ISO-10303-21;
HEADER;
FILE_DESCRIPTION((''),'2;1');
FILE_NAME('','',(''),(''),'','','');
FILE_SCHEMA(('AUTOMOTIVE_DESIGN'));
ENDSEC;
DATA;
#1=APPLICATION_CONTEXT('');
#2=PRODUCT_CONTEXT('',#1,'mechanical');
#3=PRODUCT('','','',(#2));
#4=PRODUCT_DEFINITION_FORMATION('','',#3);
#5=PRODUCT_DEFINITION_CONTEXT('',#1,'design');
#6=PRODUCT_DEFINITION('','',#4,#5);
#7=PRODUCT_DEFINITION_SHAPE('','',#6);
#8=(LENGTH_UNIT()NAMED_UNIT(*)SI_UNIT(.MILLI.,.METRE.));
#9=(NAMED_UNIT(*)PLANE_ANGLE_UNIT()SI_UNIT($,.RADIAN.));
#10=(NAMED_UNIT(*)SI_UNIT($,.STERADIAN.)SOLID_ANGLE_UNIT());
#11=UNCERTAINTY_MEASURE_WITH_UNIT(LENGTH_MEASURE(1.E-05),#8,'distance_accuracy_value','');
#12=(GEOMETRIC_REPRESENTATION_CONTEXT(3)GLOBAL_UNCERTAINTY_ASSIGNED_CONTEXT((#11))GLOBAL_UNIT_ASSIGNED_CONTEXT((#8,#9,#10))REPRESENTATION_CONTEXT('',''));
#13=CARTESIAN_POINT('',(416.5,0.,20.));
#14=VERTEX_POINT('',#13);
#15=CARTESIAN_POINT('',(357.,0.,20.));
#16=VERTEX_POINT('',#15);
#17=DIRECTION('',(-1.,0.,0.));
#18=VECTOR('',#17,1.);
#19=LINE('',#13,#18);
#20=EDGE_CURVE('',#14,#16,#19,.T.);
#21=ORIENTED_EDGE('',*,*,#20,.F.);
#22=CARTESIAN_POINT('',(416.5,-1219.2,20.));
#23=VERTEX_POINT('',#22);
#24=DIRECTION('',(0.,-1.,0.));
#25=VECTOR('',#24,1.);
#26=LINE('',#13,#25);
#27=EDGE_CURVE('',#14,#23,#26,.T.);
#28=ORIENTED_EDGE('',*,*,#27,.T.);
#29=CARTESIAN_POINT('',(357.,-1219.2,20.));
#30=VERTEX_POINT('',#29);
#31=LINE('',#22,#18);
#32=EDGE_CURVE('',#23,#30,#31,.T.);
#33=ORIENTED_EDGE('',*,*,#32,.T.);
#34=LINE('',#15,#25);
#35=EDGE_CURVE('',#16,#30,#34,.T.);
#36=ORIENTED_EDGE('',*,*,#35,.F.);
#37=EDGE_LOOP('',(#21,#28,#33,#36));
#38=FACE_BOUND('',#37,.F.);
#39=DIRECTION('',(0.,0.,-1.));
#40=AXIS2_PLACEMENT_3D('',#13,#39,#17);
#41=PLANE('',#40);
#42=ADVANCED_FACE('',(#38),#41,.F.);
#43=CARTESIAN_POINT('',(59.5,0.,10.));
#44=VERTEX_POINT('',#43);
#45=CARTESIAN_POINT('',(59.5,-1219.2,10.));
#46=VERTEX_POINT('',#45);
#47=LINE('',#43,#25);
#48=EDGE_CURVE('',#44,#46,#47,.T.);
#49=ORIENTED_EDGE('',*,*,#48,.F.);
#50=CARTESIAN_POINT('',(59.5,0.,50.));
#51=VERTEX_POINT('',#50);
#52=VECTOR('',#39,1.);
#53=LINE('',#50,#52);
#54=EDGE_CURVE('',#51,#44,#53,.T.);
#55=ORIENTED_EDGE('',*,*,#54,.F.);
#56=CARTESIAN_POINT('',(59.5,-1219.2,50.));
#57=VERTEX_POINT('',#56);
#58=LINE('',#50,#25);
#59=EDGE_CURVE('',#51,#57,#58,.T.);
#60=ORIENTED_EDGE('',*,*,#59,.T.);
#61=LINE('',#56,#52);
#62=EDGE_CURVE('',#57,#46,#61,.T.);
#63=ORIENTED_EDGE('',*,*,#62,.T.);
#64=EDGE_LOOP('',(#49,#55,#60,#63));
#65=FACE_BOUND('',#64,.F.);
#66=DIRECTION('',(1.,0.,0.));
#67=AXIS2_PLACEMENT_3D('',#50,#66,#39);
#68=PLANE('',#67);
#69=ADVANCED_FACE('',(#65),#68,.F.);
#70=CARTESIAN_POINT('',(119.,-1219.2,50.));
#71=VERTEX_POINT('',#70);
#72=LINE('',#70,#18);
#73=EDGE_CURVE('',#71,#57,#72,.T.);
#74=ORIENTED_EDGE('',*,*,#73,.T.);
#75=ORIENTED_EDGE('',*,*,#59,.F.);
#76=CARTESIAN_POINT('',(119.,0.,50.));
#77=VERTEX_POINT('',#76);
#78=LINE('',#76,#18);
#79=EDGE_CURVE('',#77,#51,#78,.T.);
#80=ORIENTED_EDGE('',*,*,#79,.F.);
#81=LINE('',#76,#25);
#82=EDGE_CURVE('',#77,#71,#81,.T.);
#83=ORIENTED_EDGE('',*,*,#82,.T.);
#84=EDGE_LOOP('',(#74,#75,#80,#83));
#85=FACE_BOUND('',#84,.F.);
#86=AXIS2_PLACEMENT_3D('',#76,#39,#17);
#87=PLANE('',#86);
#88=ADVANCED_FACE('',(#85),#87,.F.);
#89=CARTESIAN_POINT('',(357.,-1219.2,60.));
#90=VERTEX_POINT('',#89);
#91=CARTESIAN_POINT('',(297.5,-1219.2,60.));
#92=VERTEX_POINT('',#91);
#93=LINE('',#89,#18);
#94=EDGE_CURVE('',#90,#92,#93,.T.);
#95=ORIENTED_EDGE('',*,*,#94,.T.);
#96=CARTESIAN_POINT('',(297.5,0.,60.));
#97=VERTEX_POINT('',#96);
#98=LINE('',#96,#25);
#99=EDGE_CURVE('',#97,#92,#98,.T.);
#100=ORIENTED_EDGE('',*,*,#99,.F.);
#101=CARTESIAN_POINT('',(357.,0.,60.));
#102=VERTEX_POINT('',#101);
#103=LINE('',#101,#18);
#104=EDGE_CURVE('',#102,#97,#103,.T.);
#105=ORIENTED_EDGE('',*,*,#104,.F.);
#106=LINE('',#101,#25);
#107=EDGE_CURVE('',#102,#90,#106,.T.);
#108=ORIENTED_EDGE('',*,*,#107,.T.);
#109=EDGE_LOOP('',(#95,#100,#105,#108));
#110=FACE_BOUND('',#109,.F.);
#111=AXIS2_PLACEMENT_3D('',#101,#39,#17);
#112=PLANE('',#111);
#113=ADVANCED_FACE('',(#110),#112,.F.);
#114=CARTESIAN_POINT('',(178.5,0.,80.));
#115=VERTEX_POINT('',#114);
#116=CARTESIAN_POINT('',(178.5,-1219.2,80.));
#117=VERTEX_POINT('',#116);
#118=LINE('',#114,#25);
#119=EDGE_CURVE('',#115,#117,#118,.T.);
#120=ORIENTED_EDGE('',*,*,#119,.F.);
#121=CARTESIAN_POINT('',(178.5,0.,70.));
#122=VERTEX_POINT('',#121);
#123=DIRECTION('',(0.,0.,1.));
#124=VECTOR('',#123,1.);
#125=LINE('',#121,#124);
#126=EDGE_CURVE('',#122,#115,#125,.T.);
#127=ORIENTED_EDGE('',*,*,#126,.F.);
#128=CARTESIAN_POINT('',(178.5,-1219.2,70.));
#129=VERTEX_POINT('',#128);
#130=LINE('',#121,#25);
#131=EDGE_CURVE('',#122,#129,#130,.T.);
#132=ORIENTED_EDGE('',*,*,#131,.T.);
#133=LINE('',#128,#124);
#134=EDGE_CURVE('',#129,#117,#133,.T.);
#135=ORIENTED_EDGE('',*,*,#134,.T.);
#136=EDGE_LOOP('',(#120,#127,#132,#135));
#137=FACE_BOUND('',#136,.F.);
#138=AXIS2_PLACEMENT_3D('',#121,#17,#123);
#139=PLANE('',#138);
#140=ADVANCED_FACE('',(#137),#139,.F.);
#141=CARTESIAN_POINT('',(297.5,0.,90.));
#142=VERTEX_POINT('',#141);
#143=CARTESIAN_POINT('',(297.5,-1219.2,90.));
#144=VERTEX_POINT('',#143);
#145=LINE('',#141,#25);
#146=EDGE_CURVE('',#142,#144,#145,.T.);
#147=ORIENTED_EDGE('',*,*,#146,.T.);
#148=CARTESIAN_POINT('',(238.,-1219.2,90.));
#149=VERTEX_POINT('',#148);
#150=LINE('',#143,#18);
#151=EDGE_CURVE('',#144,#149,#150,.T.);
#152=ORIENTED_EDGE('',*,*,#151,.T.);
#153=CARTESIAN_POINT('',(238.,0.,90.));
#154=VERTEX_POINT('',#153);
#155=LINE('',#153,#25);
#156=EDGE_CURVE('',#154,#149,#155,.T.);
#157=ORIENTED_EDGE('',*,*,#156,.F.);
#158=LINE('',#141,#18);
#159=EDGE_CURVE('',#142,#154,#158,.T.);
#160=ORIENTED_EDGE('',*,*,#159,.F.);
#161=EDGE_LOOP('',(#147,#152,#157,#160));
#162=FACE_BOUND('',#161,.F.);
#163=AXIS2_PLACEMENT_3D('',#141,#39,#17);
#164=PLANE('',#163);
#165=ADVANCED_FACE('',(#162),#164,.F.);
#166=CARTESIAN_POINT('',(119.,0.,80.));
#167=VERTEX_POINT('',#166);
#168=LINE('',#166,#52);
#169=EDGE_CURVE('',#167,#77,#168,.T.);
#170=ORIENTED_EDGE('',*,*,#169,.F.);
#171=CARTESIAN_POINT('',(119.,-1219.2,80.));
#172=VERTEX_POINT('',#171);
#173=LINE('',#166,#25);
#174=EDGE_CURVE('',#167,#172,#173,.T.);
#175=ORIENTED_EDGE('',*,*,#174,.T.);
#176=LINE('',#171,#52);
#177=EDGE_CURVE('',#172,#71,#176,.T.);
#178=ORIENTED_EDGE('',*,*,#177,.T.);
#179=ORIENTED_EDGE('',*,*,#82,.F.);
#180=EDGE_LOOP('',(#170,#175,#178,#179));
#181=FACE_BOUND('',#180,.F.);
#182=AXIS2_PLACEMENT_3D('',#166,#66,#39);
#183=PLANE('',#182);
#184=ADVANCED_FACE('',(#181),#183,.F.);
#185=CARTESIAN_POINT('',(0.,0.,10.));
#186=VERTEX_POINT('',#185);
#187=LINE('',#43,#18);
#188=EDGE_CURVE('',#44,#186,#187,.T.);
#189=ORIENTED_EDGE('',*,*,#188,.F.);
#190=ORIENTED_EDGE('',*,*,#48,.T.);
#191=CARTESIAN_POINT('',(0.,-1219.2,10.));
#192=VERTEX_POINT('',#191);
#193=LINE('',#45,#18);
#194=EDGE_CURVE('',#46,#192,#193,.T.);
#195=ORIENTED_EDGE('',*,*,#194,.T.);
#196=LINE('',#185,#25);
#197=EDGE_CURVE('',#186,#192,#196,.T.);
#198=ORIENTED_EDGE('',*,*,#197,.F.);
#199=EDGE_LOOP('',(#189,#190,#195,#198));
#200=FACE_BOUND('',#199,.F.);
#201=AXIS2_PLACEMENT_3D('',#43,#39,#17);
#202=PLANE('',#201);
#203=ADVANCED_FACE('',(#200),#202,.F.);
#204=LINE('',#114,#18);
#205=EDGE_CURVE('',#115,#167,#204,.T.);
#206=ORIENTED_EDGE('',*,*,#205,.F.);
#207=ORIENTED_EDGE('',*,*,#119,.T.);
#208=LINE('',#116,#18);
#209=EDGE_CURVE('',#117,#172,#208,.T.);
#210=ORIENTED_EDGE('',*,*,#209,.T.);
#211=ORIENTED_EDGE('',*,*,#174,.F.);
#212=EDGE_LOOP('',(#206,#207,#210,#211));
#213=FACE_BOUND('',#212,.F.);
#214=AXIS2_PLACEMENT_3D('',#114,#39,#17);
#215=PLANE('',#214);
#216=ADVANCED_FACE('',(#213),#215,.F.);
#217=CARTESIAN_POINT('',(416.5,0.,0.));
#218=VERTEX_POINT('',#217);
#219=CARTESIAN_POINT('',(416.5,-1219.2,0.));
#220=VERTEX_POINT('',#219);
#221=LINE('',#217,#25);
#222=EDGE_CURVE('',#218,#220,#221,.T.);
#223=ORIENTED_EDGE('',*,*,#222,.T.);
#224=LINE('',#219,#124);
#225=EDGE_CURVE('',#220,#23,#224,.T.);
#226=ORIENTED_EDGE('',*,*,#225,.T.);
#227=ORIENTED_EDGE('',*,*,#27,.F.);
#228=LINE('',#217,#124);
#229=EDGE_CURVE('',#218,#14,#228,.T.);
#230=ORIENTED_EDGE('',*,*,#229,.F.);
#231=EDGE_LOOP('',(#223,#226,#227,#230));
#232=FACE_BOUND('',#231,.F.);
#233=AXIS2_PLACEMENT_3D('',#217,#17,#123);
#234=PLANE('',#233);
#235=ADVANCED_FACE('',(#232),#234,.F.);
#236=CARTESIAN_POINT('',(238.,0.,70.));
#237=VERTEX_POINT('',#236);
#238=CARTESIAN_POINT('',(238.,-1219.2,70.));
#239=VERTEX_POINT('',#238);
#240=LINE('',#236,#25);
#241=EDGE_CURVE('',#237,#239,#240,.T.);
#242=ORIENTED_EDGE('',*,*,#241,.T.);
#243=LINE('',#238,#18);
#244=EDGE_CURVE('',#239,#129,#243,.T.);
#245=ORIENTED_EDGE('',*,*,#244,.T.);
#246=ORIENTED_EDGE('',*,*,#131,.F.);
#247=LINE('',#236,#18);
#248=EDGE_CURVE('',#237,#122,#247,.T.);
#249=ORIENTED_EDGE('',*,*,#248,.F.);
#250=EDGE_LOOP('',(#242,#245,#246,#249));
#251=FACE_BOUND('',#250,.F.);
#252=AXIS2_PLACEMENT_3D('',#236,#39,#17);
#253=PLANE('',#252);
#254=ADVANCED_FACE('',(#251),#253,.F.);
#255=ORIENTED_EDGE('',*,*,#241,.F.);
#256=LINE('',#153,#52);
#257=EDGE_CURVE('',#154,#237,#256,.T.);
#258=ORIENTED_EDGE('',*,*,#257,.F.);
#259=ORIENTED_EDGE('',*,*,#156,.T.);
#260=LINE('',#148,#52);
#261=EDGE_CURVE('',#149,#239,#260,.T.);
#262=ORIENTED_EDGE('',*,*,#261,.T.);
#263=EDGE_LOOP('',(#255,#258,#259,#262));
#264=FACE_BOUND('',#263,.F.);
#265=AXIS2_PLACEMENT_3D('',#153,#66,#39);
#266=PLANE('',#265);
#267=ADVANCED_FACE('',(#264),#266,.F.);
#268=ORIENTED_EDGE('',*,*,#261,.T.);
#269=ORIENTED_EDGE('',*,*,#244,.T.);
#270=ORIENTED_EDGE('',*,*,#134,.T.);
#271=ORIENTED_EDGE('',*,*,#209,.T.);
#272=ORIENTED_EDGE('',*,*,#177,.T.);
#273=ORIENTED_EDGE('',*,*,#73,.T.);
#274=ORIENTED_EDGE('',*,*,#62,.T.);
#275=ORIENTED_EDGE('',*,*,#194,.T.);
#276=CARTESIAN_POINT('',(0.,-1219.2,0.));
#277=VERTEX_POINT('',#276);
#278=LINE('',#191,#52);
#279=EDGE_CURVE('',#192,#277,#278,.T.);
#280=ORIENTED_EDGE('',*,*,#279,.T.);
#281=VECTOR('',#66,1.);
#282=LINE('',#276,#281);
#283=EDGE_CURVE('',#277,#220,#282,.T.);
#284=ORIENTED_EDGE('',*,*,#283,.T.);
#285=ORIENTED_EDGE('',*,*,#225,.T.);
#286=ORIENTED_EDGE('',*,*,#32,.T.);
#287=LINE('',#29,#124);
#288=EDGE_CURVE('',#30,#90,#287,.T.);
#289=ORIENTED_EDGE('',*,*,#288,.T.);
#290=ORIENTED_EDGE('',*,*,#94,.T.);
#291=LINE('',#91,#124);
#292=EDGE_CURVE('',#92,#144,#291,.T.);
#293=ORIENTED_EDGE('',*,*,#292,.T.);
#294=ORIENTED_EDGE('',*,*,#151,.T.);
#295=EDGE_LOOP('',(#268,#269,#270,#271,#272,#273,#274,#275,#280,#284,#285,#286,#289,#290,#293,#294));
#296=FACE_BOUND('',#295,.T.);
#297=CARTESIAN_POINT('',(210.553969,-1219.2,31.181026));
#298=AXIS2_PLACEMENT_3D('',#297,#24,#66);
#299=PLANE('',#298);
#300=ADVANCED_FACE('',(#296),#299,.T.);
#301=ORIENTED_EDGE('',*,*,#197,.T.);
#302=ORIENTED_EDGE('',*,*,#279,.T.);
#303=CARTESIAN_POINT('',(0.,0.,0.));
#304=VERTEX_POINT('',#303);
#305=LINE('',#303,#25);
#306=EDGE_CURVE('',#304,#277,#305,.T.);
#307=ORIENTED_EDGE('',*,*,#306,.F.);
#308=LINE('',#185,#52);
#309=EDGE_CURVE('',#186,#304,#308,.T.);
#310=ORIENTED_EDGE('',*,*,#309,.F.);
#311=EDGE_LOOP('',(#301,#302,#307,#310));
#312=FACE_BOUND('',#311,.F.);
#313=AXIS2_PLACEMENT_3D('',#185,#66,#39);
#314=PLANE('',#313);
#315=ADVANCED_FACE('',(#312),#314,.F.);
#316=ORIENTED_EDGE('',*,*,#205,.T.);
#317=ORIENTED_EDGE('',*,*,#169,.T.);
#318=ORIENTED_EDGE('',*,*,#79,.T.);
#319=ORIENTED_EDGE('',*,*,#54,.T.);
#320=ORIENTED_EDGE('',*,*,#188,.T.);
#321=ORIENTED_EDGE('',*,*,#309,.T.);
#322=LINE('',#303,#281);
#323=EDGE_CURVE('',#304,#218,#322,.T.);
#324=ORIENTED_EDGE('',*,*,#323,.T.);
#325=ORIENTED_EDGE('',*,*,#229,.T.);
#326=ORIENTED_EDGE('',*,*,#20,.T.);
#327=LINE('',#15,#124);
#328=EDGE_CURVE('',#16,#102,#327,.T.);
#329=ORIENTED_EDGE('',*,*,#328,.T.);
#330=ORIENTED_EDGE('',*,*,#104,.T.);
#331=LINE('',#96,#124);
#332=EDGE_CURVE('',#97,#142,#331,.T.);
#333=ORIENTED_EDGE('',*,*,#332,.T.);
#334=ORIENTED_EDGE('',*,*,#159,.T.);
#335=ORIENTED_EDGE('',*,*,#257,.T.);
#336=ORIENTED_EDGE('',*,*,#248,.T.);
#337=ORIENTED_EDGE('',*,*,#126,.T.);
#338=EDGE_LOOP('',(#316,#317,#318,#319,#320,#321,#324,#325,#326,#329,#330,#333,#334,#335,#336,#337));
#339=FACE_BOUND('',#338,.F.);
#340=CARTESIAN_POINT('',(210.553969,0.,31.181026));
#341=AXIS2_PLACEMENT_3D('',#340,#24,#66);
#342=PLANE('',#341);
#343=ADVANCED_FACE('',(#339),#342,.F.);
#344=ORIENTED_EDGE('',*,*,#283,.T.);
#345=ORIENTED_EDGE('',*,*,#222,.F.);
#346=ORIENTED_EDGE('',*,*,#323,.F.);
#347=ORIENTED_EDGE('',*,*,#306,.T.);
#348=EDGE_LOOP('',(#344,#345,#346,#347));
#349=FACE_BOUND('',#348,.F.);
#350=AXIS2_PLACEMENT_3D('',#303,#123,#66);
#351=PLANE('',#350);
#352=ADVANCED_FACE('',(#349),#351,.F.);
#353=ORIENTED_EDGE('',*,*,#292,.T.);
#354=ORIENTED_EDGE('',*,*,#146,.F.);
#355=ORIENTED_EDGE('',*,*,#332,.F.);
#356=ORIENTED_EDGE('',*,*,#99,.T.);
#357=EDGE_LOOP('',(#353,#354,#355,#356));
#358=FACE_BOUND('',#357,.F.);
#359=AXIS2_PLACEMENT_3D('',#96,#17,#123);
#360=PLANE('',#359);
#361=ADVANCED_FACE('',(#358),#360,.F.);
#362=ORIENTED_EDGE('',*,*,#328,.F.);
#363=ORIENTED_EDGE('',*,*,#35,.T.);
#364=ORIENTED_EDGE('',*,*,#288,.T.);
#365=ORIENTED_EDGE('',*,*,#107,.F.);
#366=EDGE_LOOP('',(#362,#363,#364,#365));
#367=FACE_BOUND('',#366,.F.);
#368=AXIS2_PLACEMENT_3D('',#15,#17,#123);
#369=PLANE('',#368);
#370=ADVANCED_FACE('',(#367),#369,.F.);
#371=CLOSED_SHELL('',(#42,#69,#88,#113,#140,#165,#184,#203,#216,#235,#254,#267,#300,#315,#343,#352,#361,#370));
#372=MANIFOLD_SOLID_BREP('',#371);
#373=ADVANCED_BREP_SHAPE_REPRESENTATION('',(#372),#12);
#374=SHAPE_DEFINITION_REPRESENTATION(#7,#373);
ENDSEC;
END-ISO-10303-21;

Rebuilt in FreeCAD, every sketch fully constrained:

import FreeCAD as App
import Part
import Sketcher

V = App.Vector
Q = App.Units.Quantity

doc = App.newDocument("Part")
body = doc.addObject("PartDesign::Body", "Body")

# Sketch on XZ plane
sketch1 = doc.addObject("Sketcher::SketchObject", "Sketch")
body.addObject(sketch1)
sketch1.AttachmentSupport = (doc.XZ_Plane, [""])
sketch1.MapMode = "FlatFace"
sketch1.addGeometry(Part.LineSegment(V(0, 10, 0), V(0, 0, 0)), False)
sketch1.addGeometry(Part.LineSegment(V(0, 0, 0), V(416.5, 0, 0)), False)
sketch1.addGeometry(Part.LineSegment(V(416.5, 0, 0), V(416.5, 20, 0)), False)
sketch1.addGeometry(Part.LineSegment(V(416.5, 20, 0), V(357, 20, 0)), False)
sketch1.addGeometry(Part.LineSegment(V(357, 20, 0), V(357, 60, 0)), False)
sketch1.addGeometry(Part.LineSegment(V(357, 60, 0), V(297.5, 60, 0)), False)
sketch1.addGeometry(Part.LineSegment(V(297.5, 60, 0), V(297.5, 90, 0)), False)
sketch1.addGeometry(Part.LineSegment(V(297.5, 90, 0), V(238, 90, 0)), False)
sketch1.addGeometry(Part.LineSegment(V(238, 90, 0), V(238, 70, 0)), False)
sketch1.addGeometry(Part.LineSegment(V(238, 70, 0), V(178.5, 70, 0)), False)
sketch1.addGeometry(Part.LineSegment(V(178.5, 70, 0), V(178.5, 80, 0)), False)
sketch1.addGeometry(Part.LineSegment(V(178.5, 80, 0), V(119, 80, 0)), False)
sketch1.addGeometry(Part.LineSegment(V(119, 80, 0), V(119, 50, 0)), False)
sketch1.addGeometry(Part.LineSegment(V(119, 50, 0), V(59.5, 50, 0)), False)
sketch1.addGeometry(Part.LineSegment(V(59.5, 50, 0), V(59.5, 10, 0)), False)
sketch1.addGeometry(Part.LineSegment(V(59.5, 10, 0), V(0, 10, 0)), False)
sketch1.addConstraint(Sketcher.Constraint("Coincident", 0, 2, 1, 1))
sketch1.addConstraint(Sketcher.Constraint("Coincident", 1, 2, 2, 1))
sketch1.addConstraint(Sketcher.Constraint("Coincident", 2, 2, 3, 1))
sketch1.addConstraint(Sketcher.Constraint("Coincident", 3, 2, 4, 1))
sketch1.addConstraint(Sketcher.Constraint("Coincident", 4, 2, 5, 1))
sketch1.addConstraint(Sketcher.Constraint("Coincident", 5, 2, 6, 1))
sketch1.addConstraint(Sketcher.Constraint("Coincident", 6, 2, 7, 1))
sketch1.addConstraint(Sketcher.Constraint("Coincident", 7, 2, 8, 1))
sketch1.addConstraint(Sketcher.Constraint("Coincident", 8, 2, 9, 1))
sketch1.addConstraint(Sketcher.Constraint("Coincident", 9, 2, 10, 1))
sketch1.addConstraint(Sketcher.Constraint("Coincident", 10, 2, 11, 1))
sketch1.addConstraint(Sketcher.Constraint("Coincident", 11, 2, 12, 1))
sketch1.addConstraint(Sketcher.Constraint("Coincident", 12, 2, 13, 1))
sketch1.addConstraint(Sketcher.Constraint("Coincident", 13, 2, 14, 1))
sketch1.addConstraint(Sketcher.Constraint("Coincident", 14, 2, 15, 1))
sketch1.addConstraint(Sketcher.Constraint("Coincident", 15, 2, 0, 1))
sketch1.addConstraint(Sketcher.Constraint("Vertical", 0))
sketch1.addConstraint(Sketcher.Constraint("Horizontal", 1))
sketch1.addConstraint(Sketcher.Constraint("Vertical", 2))
sketch1.addConstraint(Sketcher.Constraint("Horizontal", 3))
sketch1.addConstraint(Sketcher.Constraint("Vertical", 4))
sketch1.addConstraint(Sketcher.Constraint("Horizontal", 5))
sketch1.addConstraint(Sketcher.Constraint("Vertical", 6))
sketch1.addConstraint(Sketcher.Constraint("Horizontal", 7))
sketch1.addConstraint(Sketcher.Constraint("Vertical", 8))
sketch1.addConstraint(Sketcher.Constraint("Horizontal", 9))
sketch1.addConstraint(Sketcher.Constraint("Vertical", 10))
sketch1.addConstraint(Sketcher.Constraint("Horizontal", 11))
sketch1.addConstraint(Sketcher.Constraint("Vertical", 12))
sketch1.addConstraint(Sketcher.Constraint("Horizontal", 13))
sketch1.addConstraint(Sketcher.Constraint("Vertical", 14))
sketch1.addConstraint(Sketcher.Constraint("Horizontal", 15))
sketch1.addConstraint(Sketcher.Constraint("Coincident", 0, 2, -1, 1))
sketch1.addConstraint(Sketcher.Constraint("Equal", 3, 5))
sketch1.addConstraint(Sketcher.Constraint("Equal", 5, 7))
sketch1.addConstraint(Sketcher.Constraint("Equal", 7, 9))
sketch1.addConstraint(Sketcher.Constraint("Equal", 9, 11))
sketch1.addConstraint(Sketcher.Constraint("Equal", 11, 13))
sketch1.addConstraint(Sketcher.Constraint("Equal", 13, 15))
sketch1.addConstraint(Sketcher.Constraint("Equal", 2, 8))
sketch1.addConstraint(Sketcher.Constraint("Equal", 0, 10))
sketch1.addConstraint(Sketcher.Constraint("Equal", 6, 12))
sketch1.addConstraint(Sketcher.Constraint("DistanceY", 0, 2, 0, 1, Q("10 mm")))
sketch1.addConstraint(Sketcher.Constraint("DistanceY", 2, 1, 2, 2, Q("20 mm")))
sketch1.addConstraint(Sketcher.Constraint("DistanceY", 4, 1, 4, 2, Q("40 mm")))
sketch1.addConstraint(Sketcher.Constraint("DistanceY", 6, 1, 6, 2, Q("30 mm")))
sketch1.addConstraint(Sketcher.Constraint("DistanceX", 1, 1, 1, 2, Q("416.5 mm")))
pad1 = doc.addObject("PartDesign::Pad", "Pad")
body.addObject(pad1)
pad1.Profile = sketch1
pad1.Length = 1219.2

doc.recompute()
